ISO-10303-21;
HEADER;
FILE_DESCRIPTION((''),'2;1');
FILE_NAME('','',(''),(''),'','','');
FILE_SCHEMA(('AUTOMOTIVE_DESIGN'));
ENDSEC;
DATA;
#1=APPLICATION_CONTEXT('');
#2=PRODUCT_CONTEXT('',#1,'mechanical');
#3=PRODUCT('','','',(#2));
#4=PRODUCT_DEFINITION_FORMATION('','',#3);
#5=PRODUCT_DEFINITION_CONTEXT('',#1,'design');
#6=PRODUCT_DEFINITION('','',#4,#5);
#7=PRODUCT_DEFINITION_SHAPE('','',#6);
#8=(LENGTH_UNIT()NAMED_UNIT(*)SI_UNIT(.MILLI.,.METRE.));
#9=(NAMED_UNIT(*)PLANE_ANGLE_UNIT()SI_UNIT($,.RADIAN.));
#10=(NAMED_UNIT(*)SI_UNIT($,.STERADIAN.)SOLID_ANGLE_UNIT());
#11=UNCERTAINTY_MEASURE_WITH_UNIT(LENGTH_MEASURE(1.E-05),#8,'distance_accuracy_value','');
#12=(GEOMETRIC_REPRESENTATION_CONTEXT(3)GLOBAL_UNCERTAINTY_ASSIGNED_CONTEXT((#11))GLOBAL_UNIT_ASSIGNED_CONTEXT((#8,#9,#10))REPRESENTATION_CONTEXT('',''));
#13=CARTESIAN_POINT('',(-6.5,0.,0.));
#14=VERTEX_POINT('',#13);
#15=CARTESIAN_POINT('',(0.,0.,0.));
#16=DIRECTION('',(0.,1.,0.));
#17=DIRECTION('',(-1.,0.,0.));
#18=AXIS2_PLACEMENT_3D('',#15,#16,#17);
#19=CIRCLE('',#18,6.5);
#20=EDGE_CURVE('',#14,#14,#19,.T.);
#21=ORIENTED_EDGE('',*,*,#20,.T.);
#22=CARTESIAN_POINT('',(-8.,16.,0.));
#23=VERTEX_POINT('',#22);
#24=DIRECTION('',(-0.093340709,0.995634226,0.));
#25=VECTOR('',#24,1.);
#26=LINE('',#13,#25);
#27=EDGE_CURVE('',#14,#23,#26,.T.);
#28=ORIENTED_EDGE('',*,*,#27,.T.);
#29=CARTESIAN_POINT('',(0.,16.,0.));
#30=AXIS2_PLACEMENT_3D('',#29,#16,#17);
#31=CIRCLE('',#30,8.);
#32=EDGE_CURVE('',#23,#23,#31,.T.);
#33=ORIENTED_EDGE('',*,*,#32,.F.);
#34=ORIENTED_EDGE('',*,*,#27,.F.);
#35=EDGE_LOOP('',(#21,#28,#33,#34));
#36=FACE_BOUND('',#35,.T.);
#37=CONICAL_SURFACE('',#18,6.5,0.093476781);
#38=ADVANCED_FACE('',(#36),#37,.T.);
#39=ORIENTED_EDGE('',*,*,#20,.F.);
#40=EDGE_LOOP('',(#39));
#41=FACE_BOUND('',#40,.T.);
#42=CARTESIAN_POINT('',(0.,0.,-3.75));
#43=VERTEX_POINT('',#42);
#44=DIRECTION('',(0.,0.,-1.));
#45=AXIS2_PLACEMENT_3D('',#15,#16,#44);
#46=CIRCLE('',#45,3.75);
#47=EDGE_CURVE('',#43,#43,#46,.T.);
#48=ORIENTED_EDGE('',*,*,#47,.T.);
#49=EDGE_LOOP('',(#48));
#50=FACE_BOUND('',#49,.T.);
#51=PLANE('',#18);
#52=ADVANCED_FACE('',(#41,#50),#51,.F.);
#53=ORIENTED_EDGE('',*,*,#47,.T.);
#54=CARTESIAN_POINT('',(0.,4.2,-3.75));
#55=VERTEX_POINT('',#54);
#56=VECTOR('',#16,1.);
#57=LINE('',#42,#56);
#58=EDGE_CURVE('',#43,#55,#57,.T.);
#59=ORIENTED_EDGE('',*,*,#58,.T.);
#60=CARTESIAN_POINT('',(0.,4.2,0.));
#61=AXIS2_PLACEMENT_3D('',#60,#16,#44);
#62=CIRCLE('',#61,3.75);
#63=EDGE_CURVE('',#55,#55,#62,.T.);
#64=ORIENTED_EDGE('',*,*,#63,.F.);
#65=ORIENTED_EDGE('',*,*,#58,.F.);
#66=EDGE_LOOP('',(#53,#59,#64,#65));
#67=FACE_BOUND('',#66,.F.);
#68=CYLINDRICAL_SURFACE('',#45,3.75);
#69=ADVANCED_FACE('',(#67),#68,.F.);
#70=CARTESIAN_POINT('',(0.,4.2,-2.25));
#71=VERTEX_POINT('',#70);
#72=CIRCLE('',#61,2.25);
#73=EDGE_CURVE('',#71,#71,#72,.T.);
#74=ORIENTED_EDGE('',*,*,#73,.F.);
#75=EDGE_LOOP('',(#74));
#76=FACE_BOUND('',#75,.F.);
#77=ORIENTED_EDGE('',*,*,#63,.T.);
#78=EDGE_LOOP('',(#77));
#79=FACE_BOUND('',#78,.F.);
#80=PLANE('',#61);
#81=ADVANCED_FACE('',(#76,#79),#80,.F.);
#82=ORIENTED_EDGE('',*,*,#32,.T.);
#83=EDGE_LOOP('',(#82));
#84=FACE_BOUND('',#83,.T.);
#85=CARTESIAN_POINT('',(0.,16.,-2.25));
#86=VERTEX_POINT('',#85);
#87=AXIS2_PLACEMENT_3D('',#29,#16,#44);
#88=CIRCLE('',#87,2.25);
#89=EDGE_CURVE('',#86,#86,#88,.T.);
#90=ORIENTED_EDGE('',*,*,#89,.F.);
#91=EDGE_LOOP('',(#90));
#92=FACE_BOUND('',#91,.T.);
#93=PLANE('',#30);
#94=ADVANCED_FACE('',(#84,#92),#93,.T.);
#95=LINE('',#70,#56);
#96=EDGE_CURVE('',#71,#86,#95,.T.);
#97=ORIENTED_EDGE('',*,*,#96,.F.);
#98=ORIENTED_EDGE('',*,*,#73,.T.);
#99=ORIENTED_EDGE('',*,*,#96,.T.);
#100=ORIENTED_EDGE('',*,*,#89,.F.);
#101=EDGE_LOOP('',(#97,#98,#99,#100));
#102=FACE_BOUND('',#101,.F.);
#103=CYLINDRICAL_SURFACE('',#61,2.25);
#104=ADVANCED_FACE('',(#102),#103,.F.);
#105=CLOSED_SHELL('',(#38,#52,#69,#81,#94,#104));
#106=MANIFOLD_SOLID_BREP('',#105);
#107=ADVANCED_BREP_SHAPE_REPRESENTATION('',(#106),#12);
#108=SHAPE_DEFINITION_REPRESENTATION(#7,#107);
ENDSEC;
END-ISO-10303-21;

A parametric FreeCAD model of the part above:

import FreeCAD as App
import Part
import Sketcher

V = App.Vector
Q = App.Units.Quantity

doc = App.newDocument("Part")
body = doc.addObject("PartDesign::Body", "Body")

sketch1 = doc.addObject("Sketcher::SketchObject", "Sketch")
body.addObject(sketch1)
sketch1.AttachmentSupport = (doc.XY_Plane, [""])
sketch1.MapMode = "FlatFace"
sketch1.addGeometry([
    Part.LineSegment(V(-6, 0, 0), V(0, 0, 0)),
    Part.LineSegment(V(0, 0, 0), V(0, 16, 0)),
    Part.LineSegment(V(0, 16, 0), V(-8, 16, 0)),
    Part.LineSegment(V(-8, 16, 0), V(-6, 0, 0)),
], False)
sketch1.addConstraint([
    Sketcher.Constraint("Coincident", 0, 2, 1, 1),
    Sketcher.Constraint("Coincident", 1, 2, 2, 1),
    Sketcher.Constraint("Coincident", 2, 2, 3, 1),
    Sketcher.Constraint("Coincident", 3, 2, 0, 1),
    Sketcher.Constraint("Horizontal", 0),
    Sketcher.Constraint("Vertical", 1),
    Sketcher.Constraint("Horizontal", 2),
    Sketcher.Constraint("Coincident", 0, 2, -1, 1),
    Sketcher.Constraint("DistanceY", 1, 1, 1, 2, Q("16 mm")),
    Sketcher.Constraint("DistanceX", 2, 2, 2, 1, Q("8 mm")),
    Sketcher.Constraint("DistanceX", 0, 1, 0, 2, Q("6.5 mm")),
])
revolution = doc.addObject("PartDesign::Revolution", "Revolution")
body.addObject(revolution)
revolution.Profile = sketch1
revolution.ReferenceAxis = (sketch1, ["V_Axis"])
revolution.Angle = 360

sketch2 = doc.addObject("Sketcher::SketchObject", "Sketch001")
body.addObject(sketch2)
sketch2.AttachmentSupport = (doc.XZ_Plane, [""])
sketch2.MapMode = "FlatFace"
sketch2.addGeometry(Part.Circle(V(0, 0, 0), V(0, 0, 1), 2.2), False)
sketch2.addConstraint([
    Sketcher.Constraint("Coincident", 0, 3, -1, 1),
    Sketcher.Constraint("Diameter", 0, Q("4.5 mm")),
])
doc.recompute()
hole = doc.addObject("PartDesign::Hole", "Hole")
body.addObject(hole)
hole.Profile = sketch2
hole.ThreadType = "None"
hole.Diameter = 4.5
hole.DepthType = "ThroughAll"
hole.HoleCutType = "Counterbore"
hole.HoleCutDiameter = 7.5
hole.HoleCutDepth = 4.2

doc.recompute()
